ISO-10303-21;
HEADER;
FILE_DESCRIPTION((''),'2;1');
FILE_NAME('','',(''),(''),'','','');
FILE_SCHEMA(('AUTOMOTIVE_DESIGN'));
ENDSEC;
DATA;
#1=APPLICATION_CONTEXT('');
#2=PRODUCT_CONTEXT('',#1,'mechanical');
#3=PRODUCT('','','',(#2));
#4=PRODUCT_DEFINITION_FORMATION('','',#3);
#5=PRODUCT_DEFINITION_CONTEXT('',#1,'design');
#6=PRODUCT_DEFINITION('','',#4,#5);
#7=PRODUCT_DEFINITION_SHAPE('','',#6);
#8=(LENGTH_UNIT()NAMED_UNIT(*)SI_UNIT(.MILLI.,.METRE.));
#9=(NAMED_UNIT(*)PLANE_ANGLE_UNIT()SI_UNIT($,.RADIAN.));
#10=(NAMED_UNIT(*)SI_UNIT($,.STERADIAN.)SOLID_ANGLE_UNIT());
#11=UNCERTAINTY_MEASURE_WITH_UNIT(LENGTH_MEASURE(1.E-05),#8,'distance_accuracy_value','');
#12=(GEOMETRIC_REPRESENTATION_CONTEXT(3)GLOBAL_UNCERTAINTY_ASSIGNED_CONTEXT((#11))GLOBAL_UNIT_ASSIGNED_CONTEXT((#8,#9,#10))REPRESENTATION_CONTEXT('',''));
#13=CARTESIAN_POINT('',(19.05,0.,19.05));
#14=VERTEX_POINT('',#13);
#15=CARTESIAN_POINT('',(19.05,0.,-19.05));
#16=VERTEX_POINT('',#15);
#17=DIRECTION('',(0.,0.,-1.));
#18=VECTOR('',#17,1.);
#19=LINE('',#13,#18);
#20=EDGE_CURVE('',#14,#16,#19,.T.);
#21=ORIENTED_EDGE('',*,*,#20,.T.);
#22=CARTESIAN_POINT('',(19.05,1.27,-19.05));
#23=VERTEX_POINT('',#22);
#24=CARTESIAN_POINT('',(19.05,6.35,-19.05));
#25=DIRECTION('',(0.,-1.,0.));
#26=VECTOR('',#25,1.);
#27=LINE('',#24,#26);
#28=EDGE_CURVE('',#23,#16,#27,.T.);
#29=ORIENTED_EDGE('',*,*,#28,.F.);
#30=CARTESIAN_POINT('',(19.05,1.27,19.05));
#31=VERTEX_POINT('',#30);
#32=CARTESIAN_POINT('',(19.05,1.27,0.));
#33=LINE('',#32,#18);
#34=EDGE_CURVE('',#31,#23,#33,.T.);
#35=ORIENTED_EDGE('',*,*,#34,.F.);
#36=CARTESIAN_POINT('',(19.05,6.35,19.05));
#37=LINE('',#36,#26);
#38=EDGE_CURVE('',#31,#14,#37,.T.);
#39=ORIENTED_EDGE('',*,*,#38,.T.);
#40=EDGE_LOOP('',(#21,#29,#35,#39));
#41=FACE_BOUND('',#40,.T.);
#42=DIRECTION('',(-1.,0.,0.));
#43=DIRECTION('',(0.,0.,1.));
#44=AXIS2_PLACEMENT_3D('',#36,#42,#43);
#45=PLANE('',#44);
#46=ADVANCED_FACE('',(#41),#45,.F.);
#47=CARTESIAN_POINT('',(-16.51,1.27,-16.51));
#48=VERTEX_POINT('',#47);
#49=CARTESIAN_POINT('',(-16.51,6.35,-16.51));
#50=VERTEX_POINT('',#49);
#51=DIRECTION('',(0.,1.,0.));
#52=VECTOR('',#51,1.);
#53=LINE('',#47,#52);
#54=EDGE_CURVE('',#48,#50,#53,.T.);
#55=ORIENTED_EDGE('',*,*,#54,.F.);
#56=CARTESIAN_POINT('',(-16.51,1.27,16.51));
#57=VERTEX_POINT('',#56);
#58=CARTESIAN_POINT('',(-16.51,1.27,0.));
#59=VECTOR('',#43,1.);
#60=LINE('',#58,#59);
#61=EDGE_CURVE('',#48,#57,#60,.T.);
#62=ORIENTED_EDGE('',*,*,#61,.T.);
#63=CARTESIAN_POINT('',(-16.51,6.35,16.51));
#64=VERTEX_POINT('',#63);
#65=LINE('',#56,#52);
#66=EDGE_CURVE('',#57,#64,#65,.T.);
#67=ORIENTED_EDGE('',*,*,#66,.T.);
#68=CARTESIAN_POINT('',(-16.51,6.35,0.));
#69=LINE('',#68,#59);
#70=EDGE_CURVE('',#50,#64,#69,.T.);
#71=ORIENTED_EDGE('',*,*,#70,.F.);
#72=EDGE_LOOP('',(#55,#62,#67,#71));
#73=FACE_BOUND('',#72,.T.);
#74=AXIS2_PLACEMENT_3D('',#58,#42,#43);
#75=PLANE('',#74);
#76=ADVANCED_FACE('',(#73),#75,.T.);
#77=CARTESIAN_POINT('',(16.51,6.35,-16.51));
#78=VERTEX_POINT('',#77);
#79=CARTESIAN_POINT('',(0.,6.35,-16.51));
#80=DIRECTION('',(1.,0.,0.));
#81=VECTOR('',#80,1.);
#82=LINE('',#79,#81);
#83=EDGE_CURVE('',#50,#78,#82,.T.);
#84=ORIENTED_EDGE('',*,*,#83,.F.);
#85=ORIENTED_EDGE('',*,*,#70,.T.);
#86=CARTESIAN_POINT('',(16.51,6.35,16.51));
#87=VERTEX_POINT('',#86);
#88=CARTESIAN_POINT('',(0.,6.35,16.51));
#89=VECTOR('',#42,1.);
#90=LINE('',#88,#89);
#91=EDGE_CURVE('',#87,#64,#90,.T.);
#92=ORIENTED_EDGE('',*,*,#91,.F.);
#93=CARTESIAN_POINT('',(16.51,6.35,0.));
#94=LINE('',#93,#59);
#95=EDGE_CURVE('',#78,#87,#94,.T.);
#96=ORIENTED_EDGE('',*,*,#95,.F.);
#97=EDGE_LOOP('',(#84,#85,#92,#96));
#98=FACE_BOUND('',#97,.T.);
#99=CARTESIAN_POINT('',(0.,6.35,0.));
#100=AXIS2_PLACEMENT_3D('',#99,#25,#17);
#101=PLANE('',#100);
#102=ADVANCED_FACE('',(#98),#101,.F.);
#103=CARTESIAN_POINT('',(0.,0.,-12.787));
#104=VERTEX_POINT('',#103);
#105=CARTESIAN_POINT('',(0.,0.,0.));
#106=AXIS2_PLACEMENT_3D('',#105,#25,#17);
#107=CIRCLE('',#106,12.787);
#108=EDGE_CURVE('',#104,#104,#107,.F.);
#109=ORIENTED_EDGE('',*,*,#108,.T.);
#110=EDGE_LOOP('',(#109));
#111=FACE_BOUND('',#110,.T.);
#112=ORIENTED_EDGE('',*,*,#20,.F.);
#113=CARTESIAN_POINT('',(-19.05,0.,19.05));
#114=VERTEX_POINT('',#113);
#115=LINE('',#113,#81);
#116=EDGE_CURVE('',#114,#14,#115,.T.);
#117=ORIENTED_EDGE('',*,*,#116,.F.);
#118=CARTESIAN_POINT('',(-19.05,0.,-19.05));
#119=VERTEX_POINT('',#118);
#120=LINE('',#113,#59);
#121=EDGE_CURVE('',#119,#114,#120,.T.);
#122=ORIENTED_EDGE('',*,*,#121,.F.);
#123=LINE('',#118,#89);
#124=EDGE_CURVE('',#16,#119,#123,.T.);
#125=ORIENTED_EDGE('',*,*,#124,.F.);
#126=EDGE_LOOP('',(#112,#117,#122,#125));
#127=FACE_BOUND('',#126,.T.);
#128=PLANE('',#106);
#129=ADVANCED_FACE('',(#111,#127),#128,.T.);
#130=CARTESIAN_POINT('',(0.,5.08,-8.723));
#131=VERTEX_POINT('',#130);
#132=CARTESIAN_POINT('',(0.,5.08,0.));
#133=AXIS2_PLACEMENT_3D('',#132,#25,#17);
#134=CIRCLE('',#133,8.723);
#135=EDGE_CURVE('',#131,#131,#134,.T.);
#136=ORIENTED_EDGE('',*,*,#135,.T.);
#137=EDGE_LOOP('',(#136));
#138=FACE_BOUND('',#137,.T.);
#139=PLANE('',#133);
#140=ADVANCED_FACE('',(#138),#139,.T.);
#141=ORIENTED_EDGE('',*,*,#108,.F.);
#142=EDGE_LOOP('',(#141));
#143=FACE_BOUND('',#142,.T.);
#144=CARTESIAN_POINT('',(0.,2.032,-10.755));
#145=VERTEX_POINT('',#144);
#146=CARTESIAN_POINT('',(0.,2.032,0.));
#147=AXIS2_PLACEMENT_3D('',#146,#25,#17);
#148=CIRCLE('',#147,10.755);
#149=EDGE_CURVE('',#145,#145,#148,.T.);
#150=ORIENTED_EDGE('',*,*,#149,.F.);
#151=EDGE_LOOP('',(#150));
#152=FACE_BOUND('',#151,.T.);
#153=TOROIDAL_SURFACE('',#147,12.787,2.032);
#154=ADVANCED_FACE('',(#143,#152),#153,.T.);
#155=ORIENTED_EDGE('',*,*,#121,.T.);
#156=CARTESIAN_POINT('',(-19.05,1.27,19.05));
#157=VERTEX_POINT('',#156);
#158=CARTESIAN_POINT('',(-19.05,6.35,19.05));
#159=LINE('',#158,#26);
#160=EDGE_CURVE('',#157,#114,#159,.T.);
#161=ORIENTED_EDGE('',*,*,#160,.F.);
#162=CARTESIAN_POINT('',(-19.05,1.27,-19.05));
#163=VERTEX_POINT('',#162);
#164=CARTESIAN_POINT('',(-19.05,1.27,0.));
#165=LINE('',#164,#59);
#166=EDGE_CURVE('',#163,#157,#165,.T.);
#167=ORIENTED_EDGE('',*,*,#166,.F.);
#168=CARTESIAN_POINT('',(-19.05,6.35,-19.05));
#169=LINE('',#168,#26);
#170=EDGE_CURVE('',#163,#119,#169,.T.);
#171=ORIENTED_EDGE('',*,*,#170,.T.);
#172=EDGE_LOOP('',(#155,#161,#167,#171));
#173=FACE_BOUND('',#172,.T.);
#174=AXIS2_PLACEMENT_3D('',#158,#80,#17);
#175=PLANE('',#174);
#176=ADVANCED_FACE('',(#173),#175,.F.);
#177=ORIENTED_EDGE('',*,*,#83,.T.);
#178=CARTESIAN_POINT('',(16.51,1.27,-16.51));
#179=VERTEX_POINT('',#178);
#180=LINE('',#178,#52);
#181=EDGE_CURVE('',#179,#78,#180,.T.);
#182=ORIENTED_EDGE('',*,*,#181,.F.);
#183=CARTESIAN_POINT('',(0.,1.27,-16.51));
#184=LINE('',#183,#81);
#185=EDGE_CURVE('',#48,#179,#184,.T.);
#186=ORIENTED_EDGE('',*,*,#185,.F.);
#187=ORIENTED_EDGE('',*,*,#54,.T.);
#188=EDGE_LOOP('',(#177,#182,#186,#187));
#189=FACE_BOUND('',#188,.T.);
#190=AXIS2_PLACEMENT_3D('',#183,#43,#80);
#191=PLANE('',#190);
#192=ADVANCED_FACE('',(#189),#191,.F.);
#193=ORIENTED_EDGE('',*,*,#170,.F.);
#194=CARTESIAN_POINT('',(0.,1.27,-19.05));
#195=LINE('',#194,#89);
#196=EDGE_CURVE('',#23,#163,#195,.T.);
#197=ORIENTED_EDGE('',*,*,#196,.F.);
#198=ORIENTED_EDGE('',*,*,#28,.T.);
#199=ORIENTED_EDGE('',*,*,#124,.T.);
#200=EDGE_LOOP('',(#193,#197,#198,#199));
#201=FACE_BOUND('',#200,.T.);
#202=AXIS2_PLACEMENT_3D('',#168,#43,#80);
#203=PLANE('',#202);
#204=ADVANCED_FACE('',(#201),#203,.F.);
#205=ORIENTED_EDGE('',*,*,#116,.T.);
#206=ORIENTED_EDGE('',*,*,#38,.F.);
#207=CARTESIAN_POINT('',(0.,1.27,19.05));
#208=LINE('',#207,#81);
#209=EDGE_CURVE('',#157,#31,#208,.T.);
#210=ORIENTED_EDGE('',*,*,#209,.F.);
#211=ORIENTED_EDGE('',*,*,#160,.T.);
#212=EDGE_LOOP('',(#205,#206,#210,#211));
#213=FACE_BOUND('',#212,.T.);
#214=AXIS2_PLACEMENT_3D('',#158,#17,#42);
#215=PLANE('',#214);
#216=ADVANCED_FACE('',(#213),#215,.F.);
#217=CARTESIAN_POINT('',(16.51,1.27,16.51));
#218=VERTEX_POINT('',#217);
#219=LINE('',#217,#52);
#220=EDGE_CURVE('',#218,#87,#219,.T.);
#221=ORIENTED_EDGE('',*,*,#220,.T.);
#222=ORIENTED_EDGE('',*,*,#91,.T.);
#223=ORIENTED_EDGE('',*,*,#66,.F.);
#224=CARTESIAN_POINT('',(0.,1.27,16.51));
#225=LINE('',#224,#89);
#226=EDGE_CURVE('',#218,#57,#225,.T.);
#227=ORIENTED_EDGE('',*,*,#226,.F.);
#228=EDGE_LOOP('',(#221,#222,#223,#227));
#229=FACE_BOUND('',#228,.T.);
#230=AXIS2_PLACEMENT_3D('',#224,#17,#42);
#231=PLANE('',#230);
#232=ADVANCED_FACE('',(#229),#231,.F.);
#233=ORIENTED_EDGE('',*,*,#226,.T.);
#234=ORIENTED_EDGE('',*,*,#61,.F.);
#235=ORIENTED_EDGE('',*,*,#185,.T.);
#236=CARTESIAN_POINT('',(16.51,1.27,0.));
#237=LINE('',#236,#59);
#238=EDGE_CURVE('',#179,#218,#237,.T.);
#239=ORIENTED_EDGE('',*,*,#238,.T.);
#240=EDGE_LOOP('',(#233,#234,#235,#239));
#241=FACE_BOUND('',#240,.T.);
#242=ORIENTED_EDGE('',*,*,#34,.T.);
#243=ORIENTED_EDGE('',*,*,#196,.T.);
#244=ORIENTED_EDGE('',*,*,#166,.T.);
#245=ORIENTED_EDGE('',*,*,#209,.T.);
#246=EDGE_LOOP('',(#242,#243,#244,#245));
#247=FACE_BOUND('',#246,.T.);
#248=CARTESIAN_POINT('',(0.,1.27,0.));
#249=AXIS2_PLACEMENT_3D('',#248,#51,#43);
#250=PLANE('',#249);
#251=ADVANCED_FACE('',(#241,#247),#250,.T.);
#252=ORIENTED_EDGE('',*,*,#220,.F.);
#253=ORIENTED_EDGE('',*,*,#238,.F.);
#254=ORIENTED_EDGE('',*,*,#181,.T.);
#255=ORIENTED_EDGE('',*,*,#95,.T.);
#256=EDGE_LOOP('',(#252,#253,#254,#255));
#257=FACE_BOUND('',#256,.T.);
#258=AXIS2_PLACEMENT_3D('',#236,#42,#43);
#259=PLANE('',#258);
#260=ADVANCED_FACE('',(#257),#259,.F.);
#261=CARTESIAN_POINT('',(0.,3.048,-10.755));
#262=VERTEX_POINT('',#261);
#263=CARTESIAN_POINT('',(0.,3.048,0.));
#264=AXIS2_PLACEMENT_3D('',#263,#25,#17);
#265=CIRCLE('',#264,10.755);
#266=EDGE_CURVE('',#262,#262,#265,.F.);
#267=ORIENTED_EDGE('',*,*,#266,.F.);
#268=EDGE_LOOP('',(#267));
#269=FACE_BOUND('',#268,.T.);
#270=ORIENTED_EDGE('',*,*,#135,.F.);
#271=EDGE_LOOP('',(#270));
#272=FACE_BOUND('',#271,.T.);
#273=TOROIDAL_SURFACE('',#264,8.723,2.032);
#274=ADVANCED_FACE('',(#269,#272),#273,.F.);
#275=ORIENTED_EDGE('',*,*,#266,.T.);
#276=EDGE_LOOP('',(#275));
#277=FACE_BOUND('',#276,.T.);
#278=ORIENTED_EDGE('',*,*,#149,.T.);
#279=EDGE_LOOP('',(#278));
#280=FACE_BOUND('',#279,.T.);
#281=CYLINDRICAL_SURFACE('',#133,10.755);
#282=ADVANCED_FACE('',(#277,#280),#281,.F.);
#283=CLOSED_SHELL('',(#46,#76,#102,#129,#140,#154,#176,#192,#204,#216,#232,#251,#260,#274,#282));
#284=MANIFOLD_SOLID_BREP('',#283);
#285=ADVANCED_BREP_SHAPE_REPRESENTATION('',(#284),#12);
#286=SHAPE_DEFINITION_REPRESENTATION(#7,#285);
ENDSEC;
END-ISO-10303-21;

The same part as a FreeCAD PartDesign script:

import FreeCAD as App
import Part
import Sketcher

V = App.Vector
Q = App.Units.Quantity


def edges_at(feature, points):
    """Names of the edges that pass closest to the given points."""
    edges = feature.Shape.Edges
    near = lambda p: min(range(len(edges)), key=lambda i: edges[i].distToShape(Part.Vertex(*p))[0])
    return sorted({f"Edge{near(p) + 1}" for p in points})

doc = App.newDocument("Part")
params = doc.addObject("Spreadsheet::Sheet", "Params")
for row, (alias, value) in enumerate([
    ("sketch1_width", "1.5 in"),
    ("pad1_length", "0.25 in"),
    ("sketch2_width", "1.5 in"),
    ("sketch2_width2", "1.3 in"),
    ("pocket1_length", "0.2 in"),
    ("pocket2_length", "0.2 in"),
    ("fillet_radius", "0.08 in"),
    ("fillet2_radius", "0.08 in"),
], start=1):
    params.set(f"A{row}", alias)
    params.set(f"B{row}", "=" + value)
    params.setAlias(f"B{row}", alias)

body = doc.addObject("PartDesign::Body", "Body")

sketch1 = body.newObject("Sketcher::SketchObject", "Sketch")
sketch1.AttachmentSupport = (doc.getObject("XZ_Plane"), [""])
sketch1.MapMode = "FlatFace"
sketch1.addGeometry([
    Part.LineSegment(V(-19, -19, 0), V(-19, 19, 0)),
    Part.LineSegment(V(-19, 19, 0), V(19, 19, 0)),
    Part.LineSegment(V(19, 19, 0), V(19, -19, 0)),
    Part.LineSegment(V(19, -19, 0), V(-19, -19, 0)),
], False)
sketch1.addConstraint([
    Sketcher.Constraint("Coincident", 0, 2, 1, 1),
    Sketcher.Constraint("Coincident", 1, 2, 2, 1),
    Sketcher.Constraint("Coincident", 2, 2, 3, 1),
    Sketcher.Constraint("Coincident", 3, 2, 0, 1),
    Sketcher.Constraint("Vertical", 0),
    Sketcher.Constraint("Horizontal", 1),
    Sketcher.Constraint("Vertical", 2),
    Sketcher.Constraint("Horizontal", 3),
    Sketcher.Constraint("Symmetric", 0, 2, 2, 2, -1, 1),
    Sketcher.Constraint("Equal", 3, 0),
    Sketcher.Constraint("DistanceX", 1, 1, 1, 2, Q("1.5 in")),
])
sketch1.setExpression("Constraints[10]", "Params.sketch1_width")
pad1 = body.newObject("PartDesign::Pad", "Pad")
pad1.Profile = sketch1
pad1.setExpression("Length", "Params.pad1_length")
pad1.Reversed = True

sketch2 = body.newObject("Sketcher::SketchObject", "Sketch001")
sketch2.AttachmentSupport = (doc.getObject("XZ_Plane"), [""])
sketch2.MapMode = "FlatFace"
sketch2.AttachmentOffset = App.Placement(V(0, 0, -0.25 * 25.4), App.Rotation())
sketch2.addGeometry([
    Part.LineSegment(V(-19, -19, 0), V(-19, 19, 0)),
    Part.LineSegment(V(-19, 19, 0), V(19, 19, 0)),
    Part.LineSegment(V(19, 19, 0), V(19, -19, 0)),
    Part.LineSegment(V(19, -19, 0), V(-19, -19, 0)),
    Part.LineSegment(V(17, 17, 0), V(-17, 17, 0)),
    Part.LineSegment(V(-17, 17, 0), V(-17, -17, 0)),
    Part.LineSegment(V(-17, -17, 0), V(17, -17, 0)),
    Part.LineSegment(V(17, -17, 0), V(17, 17, 0)),
], False)
sketch2.addConstraint([
    Sketcher.Constraint("Coincident", 0, 2, 1, 1),
    Sketcher.Constraint("Coincident", 1, 2, 2, 1),
    Sketcher.Constraint("Coincident", 2, 2, 3, 1),
    Sketcher.Constraint("Coincident", 3, 2, 0, 1),
    Sketcher.Constraint("Coincident", 4, 2, 5, 1),
    Sketcher.Constraint("Coincident", 5, 2, 6, 1),
    Sketcher.Constraint("Coincident", 6, 2, 7, 1),
    Sketcher.Constraint("Coincident", 7, 2, 4, 1),
    Sketcher.Constraint("Vertical", 0),
    Sketcher.Constraint("Horizontal", 1),
    Sketcher.Constraint("Vertical", 2),
    Sketcher.Constraint("Horizontal", 3),
    Sketcher.Constraint("Horizontal", 4),
    Sketcher.Constraint("Vertical", 5),
    Sketcher.Constraint("Horizontal", 6),
    Sketcher.Constraint("Vertical", 7),
    Sketcher.Constraint("Symmetric", 0, 2, 2, 2, -1, 1),
    Sketcher.Constraint("Symmetric", 4, 2, 6, 2, -1, 1),
    Sketcher.Constraint("Equal", 3, 0),
    Sketcher.Constraint("Equal", 6, 5),
    Sketcher.Constraint("DistanceX", 1, 1, 1, 2, Q("1.5 in")),
    Sketcher.Constraint("DistanceX", 4, 2, 4, 1, Q("1.3 in")),
])
sketch2.setExpression("Constraints[20]", "Params.sketch2_width")
sketch2.setExpression("Constraints[21]", "Params.sketch2_width2")
pocket1 = body.newObject("PartDesign::Pocket", "Pocket")
pocket1.Profile = sketch2
pocket1.setExpression("Length", "Params.pocket1_length")
pocket1.Reversed = True

sketch3 = body.newObject("Sketcher::SketchObject", "Sketch002")
sketch3.AttachmentSupport = (doc.getObject("XZ_Plane"), [""])
sketch3.MapMode = "FlatFace"
sketch3.addGeometry(Part.Circle(V(0, 0, 0), V(0, 0, 1), 11), False)
sketch3.addConstraint([
    Sketcher.Constraint("Coincident", 0, 3, -1, 1),
    Sketcher.Constraint("Diameter", 0, Q("21.51 mm")),
])
pocket2 = body.newObject("PartDesign::Pocket", "Pocket001")
pocket2.Profile = sketch3
pocket2.setExpression("Length", "Params.pocket2_length")
doc.recompute()

fillet = body.newObject("PartDesign::Fillet", "Fillet")
fillet.Base = (pocket2, edges_at(pocket2, [(0, 5.08, 10.755)]))
fillet.setExpression("Radius", "Params.fillet_radius")
doc.recompute()

fillet2 = body.newObject("PartDesign::Fillet", "Fillet001")
fillet2.Base = (fillet, edges_at(fillet, [(0, 0, 10.755)]))
fillet2.setExpression("Radius", "Params.fillet2_radius")

doc.recompute()
